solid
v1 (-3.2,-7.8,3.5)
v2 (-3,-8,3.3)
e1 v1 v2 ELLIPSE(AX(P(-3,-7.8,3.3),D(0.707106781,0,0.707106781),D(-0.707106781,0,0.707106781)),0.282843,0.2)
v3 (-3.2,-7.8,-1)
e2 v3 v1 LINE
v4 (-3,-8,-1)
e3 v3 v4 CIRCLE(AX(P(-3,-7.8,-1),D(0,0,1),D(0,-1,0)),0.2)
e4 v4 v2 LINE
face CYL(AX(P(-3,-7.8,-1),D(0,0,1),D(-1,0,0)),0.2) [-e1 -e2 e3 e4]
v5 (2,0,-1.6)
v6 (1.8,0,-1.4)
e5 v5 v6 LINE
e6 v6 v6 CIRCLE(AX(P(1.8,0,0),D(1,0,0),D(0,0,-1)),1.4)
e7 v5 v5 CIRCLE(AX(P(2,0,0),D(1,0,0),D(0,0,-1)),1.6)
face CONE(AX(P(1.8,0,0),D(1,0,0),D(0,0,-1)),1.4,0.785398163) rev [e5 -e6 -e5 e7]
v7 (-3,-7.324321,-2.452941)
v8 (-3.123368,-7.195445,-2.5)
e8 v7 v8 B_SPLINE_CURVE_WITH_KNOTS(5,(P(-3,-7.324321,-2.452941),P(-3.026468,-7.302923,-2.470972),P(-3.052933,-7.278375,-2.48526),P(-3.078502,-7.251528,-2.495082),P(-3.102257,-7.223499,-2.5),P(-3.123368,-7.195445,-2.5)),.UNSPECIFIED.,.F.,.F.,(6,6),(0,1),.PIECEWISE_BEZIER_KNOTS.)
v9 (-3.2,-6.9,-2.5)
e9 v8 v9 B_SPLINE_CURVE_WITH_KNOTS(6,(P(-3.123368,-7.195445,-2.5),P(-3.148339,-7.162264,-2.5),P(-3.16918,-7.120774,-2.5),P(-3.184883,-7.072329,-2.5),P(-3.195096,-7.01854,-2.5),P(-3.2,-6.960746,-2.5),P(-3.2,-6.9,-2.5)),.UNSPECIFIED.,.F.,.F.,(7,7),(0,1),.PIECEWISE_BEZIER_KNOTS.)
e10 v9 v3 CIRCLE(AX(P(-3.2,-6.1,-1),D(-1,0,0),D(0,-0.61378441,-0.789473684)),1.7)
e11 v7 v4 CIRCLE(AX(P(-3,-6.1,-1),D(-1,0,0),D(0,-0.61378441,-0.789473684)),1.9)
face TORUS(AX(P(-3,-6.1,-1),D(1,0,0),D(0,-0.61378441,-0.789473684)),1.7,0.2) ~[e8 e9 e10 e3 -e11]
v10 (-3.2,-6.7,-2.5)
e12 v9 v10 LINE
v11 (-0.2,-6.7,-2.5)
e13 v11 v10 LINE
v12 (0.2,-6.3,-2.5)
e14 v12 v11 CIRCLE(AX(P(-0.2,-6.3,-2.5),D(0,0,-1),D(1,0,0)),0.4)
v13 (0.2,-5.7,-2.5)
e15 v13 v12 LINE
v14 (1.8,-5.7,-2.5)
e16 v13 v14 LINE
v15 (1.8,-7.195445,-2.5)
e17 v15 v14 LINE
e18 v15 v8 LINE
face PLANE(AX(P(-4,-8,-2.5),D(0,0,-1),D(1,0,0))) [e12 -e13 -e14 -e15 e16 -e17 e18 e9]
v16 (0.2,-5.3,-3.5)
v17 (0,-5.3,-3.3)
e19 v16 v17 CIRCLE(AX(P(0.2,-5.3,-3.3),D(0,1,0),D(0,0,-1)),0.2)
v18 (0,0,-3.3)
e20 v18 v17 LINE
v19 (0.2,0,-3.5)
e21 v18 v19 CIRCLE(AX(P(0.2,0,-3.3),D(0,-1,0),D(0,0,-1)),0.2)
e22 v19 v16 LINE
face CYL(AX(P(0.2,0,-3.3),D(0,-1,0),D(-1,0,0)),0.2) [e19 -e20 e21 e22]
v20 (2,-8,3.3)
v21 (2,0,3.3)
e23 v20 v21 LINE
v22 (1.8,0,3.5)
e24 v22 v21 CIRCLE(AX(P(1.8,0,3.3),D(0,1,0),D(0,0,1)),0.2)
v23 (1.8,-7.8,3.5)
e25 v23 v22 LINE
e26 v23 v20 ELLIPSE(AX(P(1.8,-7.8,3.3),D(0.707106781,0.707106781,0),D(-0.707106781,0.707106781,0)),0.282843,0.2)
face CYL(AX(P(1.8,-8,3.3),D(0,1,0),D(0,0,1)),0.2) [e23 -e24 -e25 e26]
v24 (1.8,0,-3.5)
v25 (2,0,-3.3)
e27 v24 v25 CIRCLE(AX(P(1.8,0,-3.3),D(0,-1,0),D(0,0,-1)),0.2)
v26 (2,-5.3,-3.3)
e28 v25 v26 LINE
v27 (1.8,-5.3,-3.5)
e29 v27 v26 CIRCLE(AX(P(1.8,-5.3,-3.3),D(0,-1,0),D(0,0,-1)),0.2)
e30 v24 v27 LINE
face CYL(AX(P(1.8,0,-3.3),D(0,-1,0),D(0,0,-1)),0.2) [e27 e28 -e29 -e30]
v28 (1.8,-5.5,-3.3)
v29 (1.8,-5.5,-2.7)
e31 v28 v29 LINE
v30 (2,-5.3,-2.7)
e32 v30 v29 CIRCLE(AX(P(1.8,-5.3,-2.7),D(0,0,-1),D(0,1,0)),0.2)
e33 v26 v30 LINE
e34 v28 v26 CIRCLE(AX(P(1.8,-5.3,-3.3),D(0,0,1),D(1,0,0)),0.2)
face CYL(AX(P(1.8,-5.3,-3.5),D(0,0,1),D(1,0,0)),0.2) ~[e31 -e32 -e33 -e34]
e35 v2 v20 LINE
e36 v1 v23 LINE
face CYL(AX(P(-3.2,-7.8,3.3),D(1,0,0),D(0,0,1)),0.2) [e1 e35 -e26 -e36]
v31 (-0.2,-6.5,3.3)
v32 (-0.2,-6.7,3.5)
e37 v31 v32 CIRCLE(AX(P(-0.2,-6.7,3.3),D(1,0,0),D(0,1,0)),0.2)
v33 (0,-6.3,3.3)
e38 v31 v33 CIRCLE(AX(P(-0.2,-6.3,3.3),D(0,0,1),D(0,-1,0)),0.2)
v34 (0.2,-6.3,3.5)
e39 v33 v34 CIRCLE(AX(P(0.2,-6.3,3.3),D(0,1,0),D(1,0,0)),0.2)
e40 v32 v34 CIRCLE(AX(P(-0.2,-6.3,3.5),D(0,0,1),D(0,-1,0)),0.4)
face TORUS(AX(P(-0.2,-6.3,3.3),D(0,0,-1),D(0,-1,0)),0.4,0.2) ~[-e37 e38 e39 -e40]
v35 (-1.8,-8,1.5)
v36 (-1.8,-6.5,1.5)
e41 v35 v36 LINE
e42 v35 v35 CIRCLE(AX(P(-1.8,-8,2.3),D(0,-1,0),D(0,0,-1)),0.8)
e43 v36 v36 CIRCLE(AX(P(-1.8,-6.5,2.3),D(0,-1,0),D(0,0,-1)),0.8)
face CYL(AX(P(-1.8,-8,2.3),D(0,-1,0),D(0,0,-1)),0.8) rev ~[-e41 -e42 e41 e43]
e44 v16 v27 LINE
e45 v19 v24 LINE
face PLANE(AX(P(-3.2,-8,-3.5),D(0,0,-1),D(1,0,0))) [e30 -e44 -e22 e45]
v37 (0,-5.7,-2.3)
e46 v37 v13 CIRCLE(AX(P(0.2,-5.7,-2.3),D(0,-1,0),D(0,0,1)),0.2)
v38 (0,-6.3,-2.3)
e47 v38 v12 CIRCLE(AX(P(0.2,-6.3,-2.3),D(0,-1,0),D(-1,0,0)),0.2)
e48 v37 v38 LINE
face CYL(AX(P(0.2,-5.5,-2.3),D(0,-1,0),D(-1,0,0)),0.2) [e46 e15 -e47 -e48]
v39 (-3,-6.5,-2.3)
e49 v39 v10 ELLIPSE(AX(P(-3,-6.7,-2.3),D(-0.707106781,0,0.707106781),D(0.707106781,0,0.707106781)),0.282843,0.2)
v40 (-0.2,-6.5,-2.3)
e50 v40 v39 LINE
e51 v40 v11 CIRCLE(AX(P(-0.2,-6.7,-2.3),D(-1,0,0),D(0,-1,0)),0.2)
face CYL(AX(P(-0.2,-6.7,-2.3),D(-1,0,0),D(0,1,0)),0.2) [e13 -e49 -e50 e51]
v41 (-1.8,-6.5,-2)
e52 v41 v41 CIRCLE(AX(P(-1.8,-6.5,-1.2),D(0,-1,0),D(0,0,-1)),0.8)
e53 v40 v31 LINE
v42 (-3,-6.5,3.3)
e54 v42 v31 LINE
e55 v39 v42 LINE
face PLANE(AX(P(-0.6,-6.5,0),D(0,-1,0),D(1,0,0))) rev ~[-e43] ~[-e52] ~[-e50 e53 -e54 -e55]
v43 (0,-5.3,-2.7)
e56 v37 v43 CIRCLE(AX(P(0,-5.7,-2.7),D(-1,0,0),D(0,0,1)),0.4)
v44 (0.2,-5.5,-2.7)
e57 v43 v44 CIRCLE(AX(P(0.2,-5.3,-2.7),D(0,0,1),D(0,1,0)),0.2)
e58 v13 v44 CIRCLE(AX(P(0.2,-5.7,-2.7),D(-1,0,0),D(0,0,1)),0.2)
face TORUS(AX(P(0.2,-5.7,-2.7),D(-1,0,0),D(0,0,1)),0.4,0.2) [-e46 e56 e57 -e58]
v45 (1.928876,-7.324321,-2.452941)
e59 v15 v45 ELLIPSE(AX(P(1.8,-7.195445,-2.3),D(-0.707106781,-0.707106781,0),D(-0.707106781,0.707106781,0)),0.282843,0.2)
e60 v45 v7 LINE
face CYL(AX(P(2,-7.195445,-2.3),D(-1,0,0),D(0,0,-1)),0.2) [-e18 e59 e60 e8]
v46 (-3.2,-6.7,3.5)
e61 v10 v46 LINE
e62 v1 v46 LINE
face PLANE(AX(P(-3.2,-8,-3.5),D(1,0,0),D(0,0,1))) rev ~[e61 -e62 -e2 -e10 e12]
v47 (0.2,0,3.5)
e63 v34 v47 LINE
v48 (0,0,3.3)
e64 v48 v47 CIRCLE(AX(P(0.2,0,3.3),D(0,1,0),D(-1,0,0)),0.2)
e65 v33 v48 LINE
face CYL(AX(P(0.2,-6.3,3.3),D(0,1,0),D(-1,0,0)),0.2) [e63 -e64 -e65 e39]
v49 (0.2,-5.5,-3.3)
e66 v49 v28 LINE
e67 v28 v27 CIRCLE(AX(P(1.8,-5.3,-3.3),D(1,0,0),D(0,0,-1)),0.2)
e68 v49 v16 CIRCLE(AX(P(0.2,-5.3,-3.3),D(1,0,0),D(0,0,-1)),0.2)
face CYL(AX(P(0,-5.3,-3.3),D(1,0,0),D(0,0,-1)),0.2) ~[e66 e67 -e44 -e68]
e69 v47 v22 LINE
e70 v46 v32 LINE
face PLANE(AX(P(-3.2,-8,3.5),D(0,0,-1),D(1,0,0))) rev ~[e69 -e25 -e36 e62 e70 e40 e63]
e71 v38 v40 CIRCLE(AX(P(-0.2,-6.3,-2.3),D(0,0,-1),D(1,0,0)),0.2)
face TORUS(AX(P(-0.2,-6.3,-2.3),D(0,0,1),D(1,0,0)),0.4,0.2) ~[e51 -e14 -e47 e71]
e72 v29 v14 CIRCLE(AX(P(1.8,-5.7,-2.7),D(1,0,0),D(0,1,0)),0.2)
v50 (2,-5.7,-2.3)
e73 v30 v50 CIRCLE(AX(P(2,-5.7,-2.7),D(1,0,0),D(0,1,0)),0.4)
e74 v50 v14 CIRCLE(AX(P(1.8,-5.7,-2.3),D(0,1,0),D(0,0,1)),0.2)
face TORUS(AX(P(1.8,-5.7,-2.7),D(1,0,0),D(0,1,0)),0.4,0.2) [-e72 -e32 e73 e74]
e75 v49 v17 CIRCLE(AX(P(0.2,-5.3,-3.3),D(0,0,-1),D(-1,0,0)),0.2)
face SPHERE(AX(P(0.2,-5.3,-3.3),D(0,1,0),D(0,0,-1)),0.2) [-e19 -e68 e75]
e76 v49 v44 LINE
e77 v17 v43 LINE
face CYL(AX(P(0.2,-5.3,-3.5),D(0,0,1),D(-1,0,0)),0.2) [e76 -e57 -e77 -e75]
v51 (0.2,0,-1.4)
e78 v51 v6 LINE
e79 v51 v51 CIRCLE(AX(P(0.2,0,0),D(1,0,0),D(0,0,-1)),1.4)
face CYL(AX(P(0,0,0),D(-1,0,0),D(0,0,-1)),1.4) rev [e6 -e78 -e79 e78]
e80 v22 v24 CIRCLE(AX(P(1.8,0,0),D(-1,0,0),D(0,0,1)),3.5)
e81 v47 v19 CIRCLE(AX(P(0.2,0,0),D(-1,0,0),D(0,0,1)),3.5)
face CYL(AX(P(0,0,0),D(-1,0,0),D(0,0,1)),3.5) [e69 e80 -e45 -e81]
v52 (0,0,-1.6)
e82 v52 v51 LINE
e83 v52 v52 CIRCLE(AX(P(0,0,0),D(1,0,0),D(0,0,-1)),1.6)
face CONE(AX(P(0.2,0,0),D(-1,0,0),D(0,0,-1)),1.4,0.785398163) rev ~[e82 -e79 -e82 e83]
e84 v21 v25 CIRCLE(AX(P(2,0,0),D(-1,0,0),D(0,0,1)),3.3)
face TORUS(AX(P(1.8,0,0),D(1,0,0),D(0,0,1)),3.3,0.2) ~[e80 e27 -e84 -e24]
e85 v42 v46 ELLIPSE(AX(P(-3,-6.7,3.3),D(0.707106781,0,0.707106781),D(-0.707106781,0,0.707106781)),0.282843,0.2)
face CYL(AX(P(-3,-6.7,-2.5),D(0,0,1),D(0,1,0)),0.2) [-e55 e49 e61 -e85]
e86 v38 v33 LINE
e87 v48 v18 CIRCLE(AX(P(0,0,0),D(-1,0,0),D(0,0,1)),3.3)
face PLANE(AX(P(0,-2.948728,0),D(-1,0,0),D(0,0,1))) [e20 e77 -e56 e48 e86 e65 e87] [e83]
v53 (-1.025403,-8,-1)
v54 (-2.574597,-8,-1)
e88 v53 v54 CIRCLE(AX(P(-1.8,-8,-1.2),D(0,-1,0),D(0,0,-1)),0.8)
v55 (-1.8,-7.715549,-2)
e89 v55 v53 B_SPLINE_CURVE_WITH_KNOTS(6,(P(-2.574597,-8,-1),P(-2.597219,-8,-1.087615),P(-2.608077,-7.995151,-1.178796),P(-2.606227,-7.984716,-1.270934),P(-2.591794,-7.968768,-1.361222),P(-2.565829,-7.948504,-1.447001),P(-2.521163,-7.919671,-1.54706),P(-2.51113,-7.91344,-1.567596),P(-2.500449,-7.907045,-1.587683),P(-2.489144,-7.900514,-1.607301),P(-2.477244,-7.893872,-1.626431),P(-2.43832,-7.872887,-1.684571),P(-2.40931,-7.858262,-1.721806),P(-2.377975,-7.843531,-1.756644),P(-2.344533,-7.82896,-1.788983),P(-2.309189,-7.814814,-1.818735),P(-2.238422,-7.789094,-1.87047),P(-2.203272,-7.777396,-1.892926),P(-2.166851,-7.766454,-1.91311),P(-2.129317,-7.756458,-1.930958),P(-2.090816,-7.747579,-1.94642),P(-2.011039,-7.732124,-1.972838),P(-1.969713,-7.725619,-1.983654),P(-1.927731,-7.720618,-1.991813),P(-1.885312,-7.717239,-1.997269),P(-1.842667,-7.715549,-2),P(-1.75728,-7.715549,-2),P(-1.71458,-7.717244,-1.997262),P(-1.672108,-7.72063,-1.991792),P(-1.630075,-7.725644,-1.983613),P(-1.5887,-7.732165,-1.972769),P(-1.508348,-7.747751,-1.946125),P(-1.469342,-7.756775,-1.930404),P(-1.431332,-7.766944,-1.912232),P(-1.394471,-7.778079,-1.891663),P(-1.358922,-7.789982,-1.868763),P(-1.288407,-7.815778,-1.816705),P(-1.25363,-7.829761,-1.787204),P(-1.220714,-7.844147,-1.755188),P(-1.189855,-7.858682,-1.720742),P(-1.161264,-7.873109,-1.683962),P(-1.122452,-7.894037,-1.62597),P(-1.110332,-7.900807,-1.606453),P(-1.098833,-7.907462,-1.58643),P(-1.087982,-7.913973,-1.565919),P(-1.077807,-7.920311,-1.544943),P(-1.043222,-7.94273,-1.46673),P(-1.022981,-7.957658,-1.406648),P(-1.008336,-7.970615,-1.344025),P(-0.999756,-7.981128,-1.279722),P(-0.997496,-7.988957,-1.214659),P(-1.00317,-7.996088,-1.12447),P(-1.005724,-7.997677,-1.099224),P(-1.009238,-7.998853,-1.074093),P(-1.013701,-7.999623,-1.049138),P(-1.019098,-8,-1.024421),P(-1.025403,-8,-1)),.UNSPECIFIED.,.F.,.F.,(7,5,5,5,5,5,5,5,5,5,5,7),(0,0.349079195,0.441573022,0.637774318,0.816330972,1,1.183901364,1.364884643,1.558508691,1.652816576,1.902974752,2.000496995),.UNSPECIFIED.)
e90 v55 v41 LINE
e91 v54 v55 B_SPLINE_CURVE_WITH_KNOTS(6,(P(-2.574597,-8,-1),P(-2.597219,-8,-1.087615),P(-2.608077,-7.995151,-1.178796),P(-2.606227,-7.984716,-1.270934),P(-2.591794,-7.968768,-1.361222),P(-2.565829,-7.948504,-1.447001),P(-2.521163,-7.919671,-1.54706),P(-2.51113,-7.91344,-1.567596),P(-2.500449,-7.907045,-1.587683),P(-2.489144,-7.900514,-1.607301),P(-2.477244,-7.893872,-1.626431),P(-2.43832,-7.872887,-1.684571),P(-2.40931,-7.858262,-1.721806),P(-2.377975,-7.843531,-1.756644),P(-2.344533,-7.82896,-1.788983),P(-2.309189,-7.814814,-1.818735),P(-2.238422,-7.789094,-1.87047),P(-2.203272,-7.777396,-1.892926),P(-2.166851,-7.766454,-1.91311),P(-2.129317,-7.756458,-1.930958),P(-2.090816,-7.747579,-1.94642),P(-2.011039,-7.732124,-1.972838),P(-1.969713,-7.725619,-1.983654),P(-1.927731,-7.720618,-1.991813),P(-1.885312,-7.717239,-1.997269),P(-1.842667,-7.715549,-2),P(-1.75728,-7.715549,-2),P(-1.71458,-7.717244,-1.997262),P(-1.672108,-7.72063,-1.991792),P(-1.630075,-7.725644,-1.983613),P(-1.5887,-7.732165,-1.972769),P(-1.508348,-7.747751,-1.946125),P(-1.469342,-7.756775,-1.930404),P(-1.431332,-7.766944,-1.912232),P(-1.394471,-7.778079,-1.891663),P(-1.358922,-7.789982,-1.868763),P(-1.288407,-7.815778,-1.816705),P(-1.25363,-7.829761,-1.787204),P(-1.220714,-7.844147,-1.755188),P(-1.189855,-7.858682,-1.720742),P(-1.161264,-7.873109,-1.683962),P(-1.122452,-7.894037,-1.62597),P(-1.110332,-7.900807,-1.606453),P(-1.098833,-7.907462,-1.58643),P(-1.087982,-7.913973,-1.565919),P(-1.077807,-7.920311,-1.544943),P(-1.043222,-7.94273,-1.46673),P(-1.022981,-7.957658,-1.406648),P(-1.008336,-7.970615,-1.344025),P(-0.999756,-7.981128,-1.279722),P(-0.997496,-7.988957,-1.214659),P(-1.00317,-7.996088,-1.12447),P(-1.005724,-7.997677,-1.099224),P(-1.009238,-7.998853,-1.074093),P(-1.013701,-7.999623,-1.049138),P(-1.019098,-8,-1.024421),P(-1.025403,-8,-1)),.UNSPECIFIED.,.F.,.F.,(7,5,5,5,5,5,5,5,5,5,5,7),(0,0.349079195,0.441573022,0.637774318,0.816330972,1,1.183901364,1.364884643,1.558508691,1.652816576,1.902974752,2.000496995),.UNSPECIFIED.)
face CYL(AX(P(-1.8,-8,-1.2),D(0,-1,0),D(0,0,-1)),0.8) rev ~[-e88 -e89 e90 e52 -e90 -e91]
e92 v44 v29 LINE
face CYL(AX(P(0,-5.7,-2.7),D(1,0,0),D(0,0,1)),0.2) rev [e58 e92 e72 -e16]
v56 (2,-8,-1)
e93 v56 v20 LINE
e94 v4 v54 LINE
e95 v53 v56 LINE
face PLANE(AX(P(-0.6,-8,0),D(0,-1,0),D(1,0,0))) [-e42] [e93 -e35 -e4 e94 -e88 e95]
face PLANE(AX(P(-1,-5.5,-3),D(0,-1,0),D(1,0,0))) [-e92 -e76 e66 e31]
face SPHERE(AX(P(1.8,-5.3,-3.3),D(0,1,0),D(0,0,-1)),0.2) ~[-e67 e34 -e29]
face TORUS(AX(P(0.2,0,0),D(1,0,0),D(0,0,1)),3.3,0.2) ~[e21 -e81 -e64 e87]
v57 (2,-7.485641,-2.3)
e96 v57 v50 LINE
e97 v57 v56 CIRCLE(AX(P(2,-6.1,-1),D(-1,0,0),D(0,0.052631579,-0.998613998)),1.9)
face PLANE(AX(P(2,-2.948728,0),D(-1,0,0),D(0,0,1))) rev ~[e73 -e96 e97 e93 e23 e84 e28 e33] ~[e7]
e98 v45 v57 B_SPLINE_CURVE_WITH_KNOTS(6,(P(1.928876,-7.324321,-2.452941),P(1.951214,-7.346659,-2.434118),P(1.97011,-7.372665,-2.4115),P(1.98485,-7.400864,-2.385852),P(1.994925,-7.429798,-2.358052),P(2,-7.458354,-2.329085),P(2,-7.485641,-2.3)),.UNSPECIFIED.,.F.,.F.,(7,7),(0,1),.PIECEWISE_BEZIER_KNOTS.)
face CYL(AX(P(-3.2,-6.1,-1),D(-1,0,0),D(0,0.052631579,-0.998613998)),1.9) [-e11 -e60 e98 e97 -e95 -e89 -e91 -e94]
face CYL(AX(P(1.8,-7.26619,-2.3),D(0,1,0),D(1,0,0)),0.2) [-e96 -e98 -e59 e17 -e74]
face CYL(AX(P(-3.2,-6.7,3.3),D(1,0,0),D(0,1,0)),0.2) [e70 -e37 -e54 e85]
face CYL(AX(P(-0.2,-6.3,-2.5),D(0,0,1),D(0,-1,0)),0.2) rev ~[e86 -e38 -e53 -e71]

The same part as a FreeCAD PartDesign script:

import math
import FreeCAD as App
import Part
import Sketcher
from FreeCAD import Vector


def edges_at(feature, points):
    """Names of the edges that pass closest to the given points."""
    edges = feature.Shape.Edges
    near = lambda p: min(range(len(edges)), key=lambda i: edges[i].distToShape(Part.Vertex(*p))[0])
    return sorted({f"Edge{near(p) + 1}" for p in points})


def add_polygon(sketch, points):
    """Adds a closed chain of lines whose ends are joined by coincident constraints."""
    first, n = sketch.GeometryCount, len(points)
    for a, b in zip(points, points[1:] + points[:1]):
        sketch.addGeometry(Part.LineSegment(App.Vector(*a, 0), App.Vector(*b, 0)), False)
    for i in range(n):
        sketch.addConstraint(Sketcher.Constraint("Coincident", first + i, 2, first + (i + 1) % n, 1))

doc = App.newDocument("Part")
params = doc.addObject("Spreadsheet::Sheet", "Params")
for row, (alias, value) in enumerate([
    ("sketch1_diameter", "2.8 mm"),
    ("sketch1_radius", "3.5 mm"),
    ("sketch1_width", "8 mm"),
    ("pad1_length", "2 mm"),
    ("sketch2_diameter", "1.6 mm"),
    ("sketch2_height", "7 mm"),
    ("sketch2_width", "5.2 mm"),
    ("pad2_length", "1.5 mm"),
    ("sketch3_width", "6 mm"),
    ("sketch3_height", "1 mm"),
    ("pocket1_length", "2.5 mm"),
    ("sketch4_radius", "1.9 mm"),
    ("pocket2_length", "5.2 mm"),
    ("fillet_radius", "0.2 mm"),
    ("fillet2_radius", "0.2 mm"),
    ("chamfer_size", "0.2 mm"),
], start=1):
    params.set(f"A{row}", alias)
    params.set(f"B{row}", "=" + value)
    params.setAlias(f"B{row}", alias)

body = doc.addObject("PartDesign::Body", "Body")

# Sketch on YZ plane
sketch1 = body.newObject("Sketcher::SketchObject", "Sketch")
sketch1.AttachmentSupport = (doc.getObject("YZ_Plane"), [""])
sketch1.MapMode = "FlatFace"
sketch1.addGeometry([
    Part.LineSegment(Vector(-8, -3.5, 0), Vector(0, -3.5, 0)),  # 0
    Part.ArcOfCircle(Part.Circle(Vector(0, 0, 0), Vector(0, 0, 1), 3.5), math.radians(-90), math.radians(90)),  # 1
    Part.LineSegment(Vector(0, 3.5, 0), Vector(-8, 3.5, 0)),  # 2
    Part.LineSegment(Vector(-8, 3.5, 0), Vector(-8, -3.5, 0)),  # 3
    Part.Circle(Vector(0, 0, 0), Vector(0, 0, 1), 1.4),  # 4
], False)
sketch1.addConstraint([
    Sketcher.Constraint("Tangent", 0, 2, 1, 1),
    Sketcher.Constraint("Tangent", 1, 2, 2, 1),
    Sketcher.Constraint("Coincident", 2, 2, 3, 1),
    Sketcher.Constraint("Coincident", 3, 2, 0, 1),
    Sketcher.Constraint("Horizontal", 0),
    Sketcher.Constraint("Horizontal", 2),
    Sketcher.Constraint("Vertical", 3),
    Sketcher.Constraint("Coincident", 1, 3, -1, 1),
    Sketcher.Constraint("Coincident", 4, 3, -1, 1),
    Sketcher.Constraint("Diameter", 4, 2.8),
    Sketcher.Constraint("Radius", 1, 3.5),
    Sketcher.Constraint("DistanceX", 0, 1, 0, 2, 8.0),
])
sketch1.setExpression("Constraints[9]", "Params.sketch1_diameter")
sketch1.setExpression("Constraints[10]", "Params.sketch1_radius")
sketch1.setExpression("Constraints[11]", "Params.sketch1_width")
pad1 = body.newObject("PartDesign::Pad", "Pad")
pad1.Profile = sketch1
pad1.setExpression("Length", "Params.pad1_length")

# Sketch on XZ plane
sketch2 = body.newObject("Sketcher::SketchObject", "Sketch001")
sketch2.AttachmentSupport = (doc.getObject("XZ_Plane"), [""])
sketch2.MapMode = "FlatFace"
sketch2.AttachmentOffset = App.Placement(Vector(0, 0, 8), App.Rotation())
add_polygon(sketch2, [(-3.2, 3.5), (-3.2, -3.5), (2, -3.5), (2, 3.5)])  # lines 0-3
sketch2.addGeometry(Part.Circle(Vector(-1.8, -1.2, 0), Vector(0, 0, 1), 0.8), False)  # 4
sketch2.addGeometry(Part.Circle(Vector(-1.8, 2.3, 0), Vector(0, 0, 1), 0.8), False)  # 5
sketch2.addConstraint([
    Sketcher.Constraint("Vertical", 0),
    Sketcher.Constraint("Horizontal", 1),
    Sketcher.Constraint("Vertical", 2),
    Sketcher.Constraint("Horizontal", 3),
    Sketcher.Constraint("Equal", 4, 5),
    Sketcher.Constraint("Vertical", 4, 3, 5, 3),
    Sketcher.Constraint("Diameter", 4, 1.6),
    Sketcher.Constraint("DistanceY", 0, 2, 0, 1, 7.0),
    Sketcher.Constraint("DistanceX", 1, 1, 1, 2, 5.2),
    Sketcher.Constraint("DistanceX", -1, 1, 1, 2, 2.0),
    Sketcher.Constraint("DistanceX", 4, 3, -1, 1, 1.8),
    Sketcher.Constraint("DistanceY", 4, 3, -1, 1, 1.2),
    Sketcher.Constraint("DistanceY", -1, 1, 5, 3, 2.3),
    Sketcher.Constraint("DistanceY", 0, 2, -1, 1, 3.5),
])
sketch2.setExpression("Constraints[10]", "Params.sketch2_diameter")
sketch2.setExpression("Constraints[11]", "Params.sketch2_height")
sketch2.setExpression("Constraints[12]", "Params.sketch2_width")
pad2 = body.newObject("PartDesign::Pad", "Pad001")
pad2.Profile = sketch2
pad2.setExpression("Length", "Params.pad2_length")
pad2.Reversed = True

# Sketch on XZ plane
sketch3 = body.newObject("Sketcher::SketchObject", "Sketch002")
sketch3.AttachmentSupport = (doc.getObject("XZ_Plane"), [""])
sketch3.MapMode = "FlatFace"
sketch3.AttachmentOffset = App.Placement(Vector(0, 0, 8), App.Rotation())
add_polygon(sketch3, [(-4, -2.5), (-4, -3.5), (2, -3.5), (2, -2.5)])  # lines 0-3
sketch3.addConstraint([
    Sketcher.Constraint("Vertical", 0),
    Sketcher.Constraint("Horizontal", 1),
    Sketcher.Constraint("Vertical", 2),
    Sketcher.Constraint("Horizontal", 3),
    Sketcher.Constraint("DistanceX", 1, 1, 1, 2, 6.0),
    Sketcher.Constraint("DistanceY", 0, 2, 0, 1, 1.0),
    Sketcher.Constraint("DistanceX", 0, 2, -1, 1, 4.0),
    Sketcher.Constraint("DistanceY", 0, 2, -1, 1, 3.5),
])
sketch3.setExpression("Constraints[8]", "Params.sketch3_width")
sketch3.setExpression("Constraints[9]", "Params.sketch3_height")
pocket1 = body.newObject("PartDesign::Pocket", "Pocket")
pocket1.Profile = sketch3
pocket1.setExpression("Length", "Params.pocket1_length")

# Sketch on YZ plane
sketch4 = body.newObject("Sketcher::SketchObject", "Sketch003")
sketch4.AttachmentSupport = (doc.getObject("YZ_Plane"), [""])
sketch4.MapMode = "FlatFace"
sketch4.AttachmentOffset = App.Placement(Vector(0, 0, -3.2), App.Rotation())
sketch4.addGeometry([
    Part.LineSegment(Vector(-8.33, -3.28, 0), Vector(-8.33, -1, 0)),  # 0
    Part.LineSegment(Vector(-8.33, -1, 0), Vector(-8, -1, 0)),  # 1
    Part.ArcOfCircle(Part.Circle(Vector(-6.1, -1, 0), Vector(0, 0, 1), 1.9), math.radians(180), math.radians(273)),  # 2
    Part.LineSegment(Vector(-6, -2.9, 0), Vector(-6, -3.28, 0)),  # 3
    Part.LineSegment(Vector(-6, -3.28, 0), Vector(-8.33, -3.28, 0)),  # 4
], False)
sketch4.addConstraint([
    Sketcher.Constraint("Coincident", 0, 2, 1, 1),
    Sketcher.Constraint("Coincident", 1, 2, 2, 1),
    Sketcher.Constraint("Coincident", 2, 2, 3, 1),
    Sketcher.Constraint("Coincident", 3, 2, 4, 1),
    Sketcher.Constraint("Coincident", 4, 2, 0, 1),
    Sketcher.Constraint("Vertical", 0),
    Sketcher.Constraint("Horizontal", 1),
    Sketcher.Constraint("Vertical", 3),
    Sketcher.Constraint("Horizontal", 4),
    Sketcher.Constraint("Horizontal", 2, 3, 0, 2),
    Sketcher.Constraint("Radius", 2, 1.9),
    Sketcher.Constraint("DistanceY", 2, 3, -1, 1, 1.0),
    Sketcher.Constraint("DistanceX", 1, 2, -1, 1, 8.0),
    Sketcher.Constraint("DistanceX", 2, 2, -1, 1, 6.0),
    Sketcher.Constraint("DistanceX", 1, 1, 1, 2, 0.325128),
    Sketcher.Constraint("DistanceY", 0, 1, 0, 2, 2.277054),
])
sketch4.setExpression("Constraints[10]", "Params.sketch4_radius")
pocket2 = body.newObject("PartDesign::Pocket", "Pocket001")
pocket2.Profile = sketch4
pocket2.setExpression("Length", "Params.pocket2_length")
pocket2.Reversed = True
doc.recompute()

fillet = body.newObject("PartDesign::Fillet", "Fillet")
fillet.Base = (pocket2, edges_at(pocket2, [(0, -6.5, 0.5)]))
fillet.setExpression("Radius", "Params.fillet_radius")
doc.recompute()

fillet2 = body.newObject("PartDesign::Fillet", "Fillet001")
fillet2.Base = (fillet, edges_at(fillet, [
    (2, 3.5, 0),
    (2, -4, 3.5),
    (-3.2, -8, 1.25),
    (-3.2, -6.5, 0.5),
    (0, -2.75, -3.5),
    (2, -2.75, -3.5),
    (0, -3.15, 3.5),
    (1, -5.5, -2.5),
    (0, -5.9, -2.5),
    (1, -5.5, -3.5),
    (0, 3.5, 0),
    (2, -5.5, -3),
    (2, -6.383, -2.5),
    (0, -5.5, -3),
    (-3.2, -7.807, -1.835),
    (-0.6, -7.266, -2.5),
    (-0.6, -8, 3.5),
    (-1.7, -6.5, -2.5),
    (-1.7, -6.5, 3.5),
    (-0.059, -6.441, -2.5),
    (-0.059, -6.441, 3.5),
]))
fillet2.setExpression("Radius", "Params.fillet2_radius")
doc.recompute()

chamfer = body.newObject("PartDesign::Chamfer", "Chamfer")
chamfer.Base = (fillet2, edges_at(fillet2, [(0, 0, 1.4), (2, 0, 1.4)]))
chamfer.setExpression("Size", "Params.chamfer_size")

doc.recompute()
